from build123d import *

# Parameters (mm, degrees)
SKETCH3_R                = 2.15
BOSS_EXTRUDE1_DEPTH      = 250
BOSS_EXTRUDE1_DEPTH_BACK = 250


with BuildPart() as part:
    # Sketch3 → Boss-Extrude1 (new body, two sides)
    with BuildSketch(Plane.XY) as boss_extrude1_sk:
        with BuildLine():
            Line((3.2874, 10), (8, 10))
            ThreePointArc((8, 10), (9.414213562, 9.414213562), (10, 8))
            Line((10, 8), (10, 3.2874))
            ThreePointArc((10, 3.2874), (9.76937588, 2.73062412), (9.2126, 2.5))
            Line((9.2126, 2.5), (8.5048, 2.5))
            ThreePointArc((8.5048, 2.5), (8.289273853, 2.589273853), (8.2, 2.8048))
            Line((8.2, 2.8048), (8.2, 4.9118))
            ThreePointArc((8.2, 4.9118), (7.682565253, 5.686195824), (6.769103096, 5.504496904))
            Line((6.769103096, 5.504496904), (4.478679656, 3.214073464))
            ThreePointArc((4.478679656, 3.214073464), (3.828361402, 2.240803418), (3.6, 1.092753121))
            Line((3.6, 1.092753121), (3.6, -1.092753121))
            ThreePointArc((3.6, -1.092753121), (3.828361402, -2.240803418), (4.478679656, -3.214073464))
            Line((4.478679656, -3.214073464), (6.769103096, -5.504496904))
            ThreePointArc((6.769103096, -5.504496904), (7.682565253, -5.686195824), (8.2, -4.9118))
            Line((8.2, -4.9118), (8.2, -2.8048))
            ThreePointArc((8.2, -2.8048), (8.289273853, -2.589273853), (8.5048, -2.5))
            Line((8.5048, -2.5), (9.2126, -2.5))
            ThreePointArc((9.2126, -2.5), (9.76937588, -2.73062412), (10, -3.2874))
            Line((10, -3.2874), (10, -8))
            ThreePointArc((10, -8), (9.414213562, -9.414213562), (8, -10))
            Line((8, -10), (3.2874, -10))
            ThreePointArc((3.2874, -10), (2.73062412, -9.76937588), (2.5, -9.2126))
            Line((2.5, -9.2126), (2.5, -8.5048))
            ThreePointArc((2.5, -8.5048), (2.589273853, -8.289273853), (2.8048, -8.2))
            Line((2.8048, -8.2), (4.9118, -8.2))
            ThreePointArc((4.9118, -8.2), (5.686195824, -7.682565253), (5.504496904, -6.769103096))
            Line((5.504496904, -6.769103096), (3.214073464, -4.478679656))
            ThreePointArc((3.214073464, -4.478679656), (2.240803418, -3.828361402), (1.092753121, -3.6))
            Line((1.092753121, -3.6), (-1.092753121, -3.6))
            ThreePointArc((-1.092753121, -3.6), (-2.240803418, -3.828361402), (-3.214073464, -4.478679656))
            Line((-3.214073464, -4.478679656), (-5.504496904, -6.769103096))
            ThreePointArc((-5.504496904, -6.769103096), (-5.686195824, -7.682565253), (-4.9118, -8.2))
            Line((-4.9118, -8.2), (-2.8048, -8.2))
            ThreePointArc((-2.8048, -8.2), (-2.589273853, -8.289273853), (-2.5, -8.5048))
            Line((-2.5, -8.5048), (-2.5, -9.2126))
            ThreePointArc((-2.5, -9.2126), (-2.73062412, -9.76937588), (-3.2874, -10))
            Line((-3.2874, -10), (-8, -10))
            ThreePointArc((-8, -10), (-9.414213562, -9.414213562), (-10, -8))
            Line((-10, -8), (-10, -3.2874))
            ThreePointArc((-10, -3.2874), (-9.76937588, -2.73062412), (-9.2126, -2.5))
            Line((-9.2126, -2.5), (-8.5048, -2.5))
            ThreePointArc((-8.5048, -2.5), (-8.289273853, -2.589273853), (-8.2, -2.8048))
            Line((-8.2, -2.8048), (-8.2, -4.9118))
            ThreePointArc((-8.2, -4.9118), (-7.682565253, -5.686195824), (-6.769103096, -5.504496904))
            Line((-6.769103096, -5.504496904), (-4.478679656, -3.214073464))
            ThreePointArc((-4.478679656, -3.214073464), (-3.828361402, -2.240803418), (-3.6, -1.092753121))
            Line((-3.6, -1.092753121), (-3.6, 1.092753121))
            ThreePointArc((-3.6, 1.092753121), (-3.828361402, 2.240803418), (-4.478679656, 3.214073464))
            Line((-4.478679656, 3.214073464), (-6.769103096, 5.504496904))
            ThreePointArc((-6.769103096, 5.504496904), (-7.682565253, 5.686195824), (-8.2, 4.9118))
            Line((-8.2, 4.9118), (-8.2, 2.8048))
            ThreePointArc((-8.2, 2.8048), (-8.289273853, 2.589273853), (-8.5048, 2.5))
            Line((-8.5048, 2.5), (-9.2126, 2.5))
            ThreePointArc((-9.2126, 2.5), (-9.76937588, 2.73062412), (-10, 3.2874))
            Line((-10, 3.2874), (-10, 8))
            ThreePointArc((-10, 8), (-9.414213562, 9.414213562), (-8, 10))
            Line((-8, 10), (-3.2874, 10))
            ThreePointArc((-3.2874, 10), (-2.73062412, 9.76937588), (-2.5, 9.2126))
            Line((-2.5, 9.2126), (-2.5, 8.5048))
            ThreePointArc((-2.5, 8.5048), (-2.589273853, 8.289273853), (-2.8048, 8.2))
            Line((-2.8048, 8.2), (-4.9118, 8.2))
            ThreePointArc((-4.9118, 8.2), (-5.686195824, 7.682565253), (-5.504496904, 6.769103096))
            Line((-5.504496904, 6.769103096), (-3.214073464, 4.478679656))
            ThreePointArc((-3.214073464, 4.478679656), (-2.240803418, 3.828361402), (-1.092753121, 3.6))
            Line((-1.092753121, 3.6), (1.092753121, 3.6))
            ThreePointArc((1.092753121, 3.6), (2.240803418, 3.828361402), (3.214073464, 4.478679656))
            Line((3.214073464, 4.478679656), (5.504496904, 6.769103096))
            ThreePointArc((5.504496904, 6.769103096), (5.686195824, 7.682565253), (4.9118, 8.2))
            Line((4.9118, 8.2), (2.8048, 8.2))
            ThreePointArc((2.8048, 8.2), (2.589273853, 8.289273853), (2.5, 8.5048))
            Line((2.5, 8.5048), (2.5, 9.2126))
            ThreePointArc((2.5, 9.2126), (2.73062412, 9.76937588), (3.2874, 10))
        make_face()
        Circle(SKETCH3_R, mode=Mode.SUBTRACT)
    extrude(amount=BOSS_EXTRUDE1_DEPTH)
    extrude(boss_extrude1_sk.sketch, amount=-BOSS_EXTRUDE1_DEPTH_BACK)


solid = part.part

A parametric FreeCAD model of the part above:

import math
import FreeCAD as App
import Part
import Sketcher
from FreeCAD import Vector
Q = App.Units.Quantity

doc = App.newDocument("Part")
params = doc.addObject("Spreadsheet::Sheet", "Params")
for row, (alias, value) in enumerate([
    ("sketch1_radius", "3 mm"),
    ("sketch1_radius2", "2 mm"),
    ("sketch1_diameter", "4.3 mm"),
    ("pad1_length", "250 mm"),
    ("pad1_length2", "250 mm"),
], start=1):
    params.set(f"A{row}", alias)
    params.set(f"B{row}", "=" + value)
    params.setAlias(f"B{row}", alias)

body = doc.addObject("PartDesign::Body", "Body")

sketch1 = body.newObject("Sketcher::SketchObject", "Sketch")
sketch1.AttachmentSupport = (doc.getObject("XY_Plane"), [""])
sketch1.MapMode = "FlatFace"
sketch1.addGeometry(Part.LineSegment(Vector(8, 10, 0), Vector(3.29, 10, 0)), False)
sketch1.addGeometry(Part.ArcOfCircle(Part.Circle(Vector(3.29, 9.21, 0), Vector(0, 0, 1), 0.79), math.radians(90), math.radians(180)), False)
sketch1.addGeometry(Part.LineSegment(Vector(2.5, 9.21, 0), Vector(2.5, 8.5, 0)), False)
sketch1.addGeometry(Part.ArcOfCircle(Part.Circle(Vector(2.8, 8.5, 0), Vector(0, 0, 1), 0.3), math.radians(180), math.radians(270)), False)
sketch1.addGeometry(Part.LineSegment(Vector(2.8, 8.2, 0), Vector(4.91, 8.2, 0)), False)
sketch1.addGeometry(Part.ArcOfCircle(Part.Circle(Vector(4.91, 7.36, 0), Vector(0, 0, 1), 0.84), math.radians(-45), math.radians(90)), False)
sketch1.addGeometry(Part.LineSegment(Vector(5.5, 6.77, 0), Vector(3.21, 4.48, 0)), False)
sketch1.addGeometry(Part.ArcOfCircle(Part.Circle(Vector(1.09, 6.6, 0), Vector(0, 0, 1), 3), math.radians(-90), math.radians(-45)), False)
sketch1.addGeometry(Part.LineSegment(Vector(1.09, 3.6, 0), Vector(-1.09, 3.6, 0)), False)
sketch1.addGeometry(Part.ArcOfCircle(Part.Circle(Vector(-1.09, 6.6, 0), Vector(0, 0, 1), 3), math.radians(-135), math.radians(-90)), False)
sketch1.addGeometry(Part.LineSegment(Vector(-3.21, 4.48, 0), Vector(-5.5, 6.77, 0)), False)
sketch1.addGeometry(Part.ArcOfCircle(Part.Circle(Vector(-4.91, 7.36, 0), Vector(0, 0, 1), 0.84), math.radians(90), math.radians(225)), False)
sketch1.addGeometry(Part.LineSegment(Vector(-4.91, 8.2, 0), Vector(-2.8, 8.2, 0)), False)
sketch1.addGeometry(Part.ArcOfCircle(Part.Circle(Vector(-2.8, 8.5, 0), Vector(0, 0, 1), 0.3), math.radians(-90), math.radians(0)), False)
sketch1.addGeometry(Part.LineSegment(Vector(-2.5, 8.5, 0), Vector(-2.5, 9.21, 0)), False)
sketch1.addGeometry(Part.ArcOfCircle(Part.Circle(Vector(-3.29, 9.21, 0), Vector(0, 0, 1), 0.79), math.radians(0), math.radians(90)), False)
sketch1.addGeometry(Part.LineSegment(Vector(-3.29, 10, 0), Vector(-8, 10, 0)), False)
sketch1.addGeometry(Part.ArcOfCircle(Part.Circle(Vector(-8, 8, 0), Vector(0, 0, 1), 2), math.radians(90), math.radians(180)), False)
sketch1.addGeometry(Part.LineSegment(Vector(-10, 8, 0), Vector(-10, 3.29, 0)), False)
sketch1.addGeometry(Part.ArcOfCircle(Part.Circle(Vector(-9.21, 3.29, 0), Vector(0, 0, 1), 0.79), math.radians(180), math.radians(270)), False)
sketch1.addGeometry(Part.LineSegment(Vector(-9.21, 2.5, 0), Vector(-8.5, 2.5, 0)), False)
sketch1.addGeometry(Part.ArcOfCircle(Part.Circle(Vector(-8.5, 2.8, 0), Vector(0, 0, 1), 0.3), math.radians(-90), math.radians(0)), False)
sketch1.addGeometry(Part.LineSegment(Vector(-8.2, 2.8, 0), Vector(-8.2, 4.91, 0)), False)
sketch1.addGeometry(Part.ArcOfCircle(Part.Circle(Vector(-7.36, 4.91, 0), Vector(0, 0, 1), 0.84), math.radians(45), math.radians(180)), False)
sketch1.addGeometry(Part.LineSegment(Vector(-6.77, 5.5, 0), Vector(-4.48, 3.21, 0)), False)
sketch1.addGeometry(Part.ArcOfCircle(Part.Circle(Vector(-6.6, 1.09, 0), Vector(0, 0, 1), 3), math.radians(0), math.radians(45)), False)
sketch1.addGeometry(Part.LineSegment(Vector(-3.6, 1.09, 0), Vector(-3.6, -1.09, 0)), False)
sketch1.addGeometry(Part.ArcOfCircle(Part.Circle(Vector(-6.6, -1.09, 0), Vector(0, 0, 1), 3), math.radians(-45), math.radians(0)), False)
sketch1.addGeometry(Part.LineSegment(Vector(-4.48, -3.21, 0), Vector(-6.77, -5.5, 0)), False)
sketch1.addGeometry(Part.ArcOfCircle(Part.Circle(Vector(-7.36, -4.91, 0), Vector(0, 0, 1), 0.84), math.radians(180), math.radians(315)), False)
sketch1.addGeometry(Part.LineSegment(Vector(-8.2, -4.91, 0), Vector(-8.2, -2.8, 0)), False)
sketch1.addGeometry(Part.ArcOfCircle(Part.Circle(Vector(-8.5, -2.8, 0), Vector(0, 0, 1), 0.3), math.radians(0), math.radians(90)), False)
sketch1.addGeometry(Part.LineSegment(Vector(-8.5, -2.5, 0), Vector(-9.21, -2.5, 0)), False)
sketch1.addGeometry(Part.ArcOfCircle(Part.Circle(Vector(-9.21, -3.29, 0), Vector(0, 0, 1), 0.79), math.radians(90), math.radians(180)), False)
sketch1.addGeometry(Part.LineSegment(Vector(-10, -3.29, 0), Vector(-10, -8, 0)), False)
sketch1.addGeometry(Part.ArcOfCircle(Part.Circle(Vector(-8, -8, 0), Vector(0, 0, 1), 2), math.radians(-180), math.radians(-90)), False)
sketch1.addGeometry(Part.LineSegment(Vector(-8, -10, 0), Vector(-3.29, -10, 0)), False)
sketch1.addGeometry(Part.ArcOfCircle(Part.Circle(Vector(-3.29, -9.21, 0), Vector(0, 0, 1), 0.79), math.radians(-90), math.radians(0)), False)
sketch1.addGeometry(Part.LineSegment(Vector(-2.5, -9.21, 0), Vector(-2.5, -8.5, 0)), False)
sketch1.addGeometry(Part.ArcOfCircle(Part.Circle(Vector(-2.8, -8.5, 0), Vector(0, 0, 1), 0.3), math.radians(0), math.radians(90)), False)
sketch1.addGeometry(Part.LineSegment(Vector(-2.8, -8.2, 0), Vector(-4.91, -8.2, 0)), False)
sketch1.addGeometry(Part.ArcOfCircle(Part.Circle(Vector(-4.91, -7.36, 0), Vector(0, 0, 1), 0.84), math.radians(135), math.radians(270)), False)
sketch1.addGeometry(Part.LineSegment(Vector(-5.5, -6.77, 0), Vector(-3.21, -4.48, 0)), False)
sketch1.addGeometry(Part.ArcOfCircle(Part.Circle(Vector(-1.09, -6.6, 0), Vector(0, 0, 1), 3), math.radians(90), math.radians(135)), False)
sketch1.addGeometry(Part.LineSegment(Vector(-1.09, -3.6, 0), Vector(1.09, -3.6, 0)), False)
sketch1.addGeometry(Part.ArcOfCircle(Part.Circle(Vector(1.09, -6.6, 0), Vector(0, 0, 1), 3), math.radians(45), math.radians(90)), False)
sketch1.addGeometry(Part.LineSegment(Vector(3.21, -4.48, 0), Vector(5.5, -6.77, 0)), False)
sketch1.addGeometry(Part.ArcOfCircle(Part.Circle(Vector(4.91, -7.36, 0), Vector(0, 0, 1), 0.84), math.radians(-90), math.radians(45)), False)
sketch1.addGeometry(Part.LineSegment(Vector(4.91, -8.2, 0), Vector(2.8, -8.2, 0)), False)
sketch1.addGeometry(Part.ArcOfCircle(Part.Circle(Vector(2.8, -8.5, 0), Vector(0, 0, 1), 0.3), math.radians(90), math.radians(180)), False)
sketch1.addGeometry(Part.LineSegment(Vector(2.5, -8.5, 0), Vector(2.5, -9.21, 0)), False)
sketch1.addGeometry(Part.ArcOfCircle(Part.Circle(Vector(3.29, -9.21, 0), Vector(0, 0, 1), 0.79), math.radians(180), math.radians(270)), False)
sketch1.addGeometry(Part.LineSegment(Vector(3.29, -10, 0), Vector(8, -10, 0)), False)
sketch1.addGeometry(Part.ArcOfCircle(Part.Circle(Vector(8, -8, 0), Vector(0, 0, 1), 2), math.radians(-90), math.radians(0)), False)
sketch1.addGeometry(Part.LineSegment(Vector(10, -8, 0), Vector(10, -3.29, 0)), False)
sketch1.addGeometry(Part.ArcOfCircle(Part.Circle(Vector(9.21, -3.29, 0), Vector(0, 0, 1), 0.79), math.radians(0), math.radians(90)), False)
sketch1.addGeometry(Part.LineSegment(Vector(9.21, -2.5, 0), Vector(8.5, -2.5, 0)), False)
sketch1.addGeometry(Part.ArcOfCircle(Part.Circle(Vector(8.5, -2.8, 0), Vector(0, 0, 1), 0.3), math.radians(90), math.radians(180)), False)
sketch1.addGeometry(Part.LineSegment(Vector(8.2, -2.8, 0), Vector(8.2, -4.91, 0)), False)
sketch1.addGeometry(Part.ArcOfCircle(Part.Circle(Vector(7.36, -4.91, 0), Vector(0, 0, 1), 0.84), math.radians(-135), math.radians(0)), False)
sketch1.addGeometry(Part.LineSegment(Vector(6.77, -5.5, 0), Vector(4.48, -3.21, 0)), False)
sketch1.addGeometry(Part.ArcOfCircle(Part.Circle(Vector(6.6, -1.09, 0), Vector(0, 0, 1), 3), math.radians(180), math.radians(225)), False)
sketch1.addGeometry(Part.LineSegment(Vector(3.6, -1.09, 0), Vector(3.6, 1.09, 0)), False)
sketch1.addGeometry(Part.ArcOfCircle(Part.Circle(Vector(6.6, 1.09, 0), Vector(0, 0, 1), 3), math.radians(135), math.radians(180)), False)
sketch1.addGeometry(Part.LineSegment(Vector(4.48, 3.21, 0), Vector(6.77, 5.5, 0)), False)
sketch1.addGeometry(Part.ArcOfCircle(Part.Circle(Vector(7.36, 4.91, 0), Vector(0, 0, 1), 0.84), math.radians(0), math.radians(135)), False)
sketch1.addGeometry(Part.LineSegment(Vector(8.2, 4.91, 0), Vector(8.2, 2.8, 0)), False)
sketch1.addGeometry(Part.ArcOfCircle(Part.Circle(Vector(8.5, 2.8, 0), Vector(0, 0, 1), 0.3), math.radians(180), math.radians(270)), False)
sketch1.addGeometry(Part.LineSegment(Vector(8.5, 2.5, 0), Vector(9.21, 2.5, 0)), False)
sketch1.addGeometry(Part.ArcOfCircle(Part.Circle(Vector(9.21, 3.29, 0), Vector(0, 0, 1), 0.79), math.radians(-90), math.radians(0)), False)
sketch1.addGeometry(Part.LineSegment(Vector(10, 3.29, 0), Vector(10, 8, 0)), False)
sketch1.addGeometry(Part.ArcOfCircle(Part.Circle(Vector(8, 8, 0), Vector(0, 0, 1), 2), math.radians(0), math.radians(90)), False)
sketch1.addGeometry(Part.Circle(Vector(0, 0, 0), Vector(0, 0, 1), 2.15), False)
sketch1.addConstraint(Sketcher.Constraint("Tangent", 0, 2, 1, 1))
sketch1.addConstraint(Sketcher.Constraint("Tangent", 1, 2, 2, 1))
sketch1.addConstraint(Sketcher.Constraint("Tangent", 2, 2, 3, 1))
sketch1.addConstraint(Sketcher.Constraint("Tangent", 3, 2, 4, 1))
sketch1.addConstraint(Sketcher.Constraint("Tangent", 4, 2, 5, 2))
sketch1.addConstraint(Sketcher.Constraint("Tangent", 5, 1, 6, 1))
sketch1.addConstraint(Sketcher.Constraint("Tangent", 6, 2, 7, 2))
sketch1.addConstraint(Sketcher.Constraint("Tangent", 7, 1, 8, 1))
sketch1.addConstraint(Sketcher.Constraint("Tangent", 8, 2, 9, 2))
sketch1.addConstraint(Sketcher.Constraint("Tangent", 9, 1, 10, 1))
sketch1.addConstraint(Sketcher.Constraint("Tangent", 10, 2, 11, 2))
sketch1.addConstraint(Sketcher.Constraint("Tangent", 11, 1, 12, 1))
sketch1.addConstraint(Sketcher.Constraint("Tangent", 12, 2, 13, 1))
sketch1.addConstraint(Sketcher.Constraint("Tangent", 13, 2, 14, 1))
sketch1.addConstraint(Sketcher.Constraint("Tangent", 14, 2, 15, 1))
sketch1.addConstraint(Sketcher.Constraint("Tangent", 15, 2, 16, 1))
sketch1.addConstraint(Sketcher.Constraint("Tangent", 16, 2, 17, 1))
sketch1.addConstraint(Sketcher.Constraint("Tangent", 17, 2, 18, 1))
sketch1.addConstraint(Sketcher.Constraint("Tangent", 18, 2, 19, 1))
sketch1.addConstraint(Sketcher.Constraint("Tangent", 19, 2, 20, 1))
sketch1.addConstraint(Sketcher.Constraint("Tangent", 20, 2, 21, 1))
sketch1.addConstraint(Sketcher.Constraint("Tangent", 21, 2, 22, 1))
sketch1.addConstraint(Sketcher.Constraint("Tangent", 22, 2, 23, 2))
sketch1.addConstraint(Sketcher.Constraint("Tangent", 23, 1, 24, 1))
sketch1.addConstraint(Sketcher.Constraint("Tangent", 24, 2, 25, 2))
sketch1.addConstraint(Sketcher.Constraint("Tangent", 25, 1, 26, 1))
sketch1.addConstraint(Sketcher.Constraint("Tangent", 26, 2, 27, 2))
sketch1.addConstraint(Sketcher.Constraint("Tangent", 27, 1, 28, 1))
sketch1.addConstraint(Sketcher.Constraint("Tangent", 28, 2, 29, 2))
sketch1.addConstraint(Sketcher.Constraint("Tangent", 29, 1, 30, 1))
sketch1.addConstraint(Sketcher.Constraint("Tangent", 30, 2, 31, 1))
sketch1.addConstraint(Sketcher.Constraint("Tangent", 31, 2, 32, 1))
sketch1.addConstraint(Sketcher.Constraint("Tangent", 32, 2, 33, 1))
sketch1.addConstraint(Sketcher.Constraint("Tangent", 33, 2, 34, 1))
sketch1.addConstraint(Sketcher.Constraint("Tangent", 34, 2, 35, 1))
sketch1.addConstraint(Sketcher.Constraint("Tangent", 35, 2, 36, 1))
sketch1.addConstraint(Sketcher.Constraint("Tangent", 36, 2, 37, 1))
sketch1.addConstraint(Sketcher.Constraint("Tangent", 37, 2, 38, 1))
sketch1.addConstraint(Sketcher.Constraint("Tangent", 38, 2, 39, 1))
sketch1.addConstraint(Sketcher.Constraint("Tangent", 39, 2, 40, 1))
sketch1.addConstraint(Sketcher.Constraint("Tangent", 40, 2, 41, 2))
sketch1.addConstraint(Sketcher.Constraint("Tangent", 41, 1, 42, 1))
sketch1.addConstraint(Sketcher.Constraint("Tangent", 42, 2, 43, 2))
sketch1.addConstraint(Sketcher.Constraint("Tangent", 43, 1, 44, 1))
sketch1.addConstraint(Sketcher.Constraint("Tangent", 44, 2, 45, 2))
sketch1.addConstraint(Sketcher.Constraint("Tangent", 45, 1, 46, 1))
sketch1.addConstraint(Sketcher.Constraint("Tangent", 46, 2, 47, 2))
sketch1.addConstraint(Sketcher.Constraint("Tangent", 47, 1, 48, 1))
sketch1.addConstraint(Sketcher.Constraint("Tangent", 48, 2, 49, 1))
sketch1.addConstraint(Sketcher.Constraint("Tangent", 49, 2, 50, 1))
sketch1.addConstraint(Sketcher.Constraint("Tangent", 50, 2, 51, 1))
sketch1.addConstraint(Sketcher.Constraint("Tangent", 51, 2, 52, 1))
sketch1.addConstraint(Sketcher.Constraint("Tangent", 52, 2, 53, 1))
sketch1.addConstraint(Sketcher.Constraint("Tangent", 53, 2, 54, 1))
sketch1.addConstraint(Sketcher.Constraint("Tangent", 54, 2, 55, 1))
sketch1.addConstraint(Sketcher.Constraint("Tangent", 55, 2, 56, 1))
sketch1.addConstraint(Sketcher.Constraint("Tangent", 56, 2, 57, 1))
sketch1.addConstraint(Sketcher.Constraint("Tangent", 57, 2, 58, 1))
sketch1.addConstraint(Sketcher.Constraint("Tangent", 58, 2, 59, 2))
sketch1.addConstraint(Sketcher.Constraint("Tangent", 59, 1, 60, 1))
sketch1.addConstraint(Sketcher.Constraint("Tangent", 60, 2, 61, 2))
sketch1.addConstraint(Sketcher.Constraint("Tangent", 61, 1, 62, 1))
sketch1.addConstraint(Sketcher.Constraint("Tangent", 62, 2, 63, 2))
sketch1.addConstraint(Sketcher.Constraint("Tangent", 63, 1, 64, 1))
sketch1.addConstraint(Sketcher.Constraint("Tangent", 64, 2, 65, 2))
sketch1.addConstraint(Sketcher.Constraint("Tangent", 65, 1, 66, 1))
sketch1.addConstraint(Sketcher.Constraint("Tangent", 66, 2, 67, 1))
sketch1.addConstraint(Sketcher.Constraint("Tangent", 67, 2, 68, 1))
sketch1.addConstraint(Sketcher.Constraint("Tangent", 68, 2, 69, 1))
sketch1.addConstraint(Sketcher.Constraint("Tangent", 69, 2, 70, 1))
sketch1.addConstraint(Sketcher.Constraint("Tangent", 70, 2, 71, 1))
sketch1.addConstraint(Sketcher.Constraint("Tangent", 71, 2, 0, 1))
sketch1.addConstraint(Sketcher.Constraint("Horizontal", 0))
sketch1.addConstraint(Sketcher.Constraint("Vertical", 2))
sketch1.addConstraint(Sketcher.Constraint("Horizontal", 4))
sketch1.addConstraint(Sketcher.Constraint("Horizontal", 8))
sketch1.addConstraint(Sketcher.Constraint("Horizontal", 12))
sketch1.addConstraint(Sketcher.Constraint("Vertical", 14))
sketch1.addConstraint(Sketcher.Constraint("Horizontal", 16))
sketch1.addConstraint(Sketcher.Constraint("Vertical", 18))
sketch1.addConstraint(Sketcher.Constraint("Horizontal", 20))
sketch1.addConstraint(Sketcher.Constraint("Vertical", 22))
sketch1.addConstraint(Sketcher.Constraint("Vertical", 26))
sketch1.addConstraint(Sketcher.Constraint("Vertical", 30))
sketch1.addConstraint(Sketcher.Constraint("Horizontal", 32))
sketch1.addConstraint(Sketcher.Constraint("Vertical", 34))
sketch1.addConstraint(Sketcher.Constraint("Horizontal", 36))
sketch1.addConstraint(Sketcher.Constraint("Vertical", 38))
sketch1.addConstraint(Sketcher.Constraint("Horizontal", 40))
sketch1.addConstraint(Sketcher.Constraint("Horizontal", 44))
sketch1.addConstraint(Sketcher.Constraint("Horizontal", 48))
sketch1.addConstraint(Sketcher.Constraint("Vertical", 50))
sketch1.addConstraint(Sketcher.Constraint("Horizontal", 52))
sketch1.addConstraint(Sketcher.Constraint("Vertical", 54))
sketch1.addConstraint(Sketcher.Constraint("Horizontal", 56))
sketch1.addConstraint(Sketcher.Constraint("Vertical", 58))
sketch1.addConstraint(Sketcher.Constraint("Vertical", 62))
sketch1.addConstraint(Sketcher.Constraint("Vertical", 66))
sketch1.addConstraint(Sketcher.Constraint("Horizontal", 68))
sketch1.addConstraint(Sketcher.Constraint("Vertical", 70))
sketch1.addConstraint(Sketcher.Constraint("Coincident", 72, 3, -1, 1))
sketch1.addConstraint(Sketcher.Constraint("Equal", 7, 9))
sketch1.addConstraint(Sketcher.Constraint("Equal", 5, 11))
sketch1.addConstraint(Sketcher.Constraint("Equal", 3, 13))
sketch1.addConstraint(Sketcher.Constraint("Equal", 1, 15))
sketch1.addConstraint(Sketcher.Constraint("Equal", 15, 19))
sketch1.addConstraint(Sketcher.Constraint("Equal", 13, 21))
sketch1.addConstraint(Sketcher.Constraint("Equal", 11, 23))
sketch1.addConstraint(Sketcher.Constraint("Equal", 9, 25))
sketch1.addConstraint(Sketcher.Constraint("Equal", 25, 27))
sketch1.addConstraint(Sketcher.Constraint("Equal", 23, 29))
sketch1.addConstraint(Sketcher.Constraint("Equal", 21, 31))
sketch1.addConstraint(Sketcher.Constraint("Equal", 19, 33))
sketch1.addConstraint(Sketcher.Constraint("Equal", 17, 35))
sketch1.addConstraint(Sketcher.Constraint("Equal", 33, 37))
sketch1.addConstraint(Sketcher.Constraint("Equal", 31, 39))
sketch1.addConstraint(Sketcher.Constraint("Equal", 29, 41))
sketch1.addConstraint(Sketcher.Constraint("Equal", 27, 43))
sketch1.addConstraint(Sketcher.Constraint("Equal", 43, 45))
sketch1.addConstraint(Sketcher.Constraint("Equal", 41, 47))
sketch1.addConstraint(Sketcher.Constraint("Equal", 39, 49))
sketch1.addConstraint(Sketcher.Constraint("Equal", 37, 51))
sketch1.addConstraint(Sketcher.Constraint("Equal", 35, 53))
sketch1.addConstraint(Sketcher.Constraint("Equal", 51, 55))
sketch1.addConstraint(Sketcher.Constraint("Equal", 49, 57))
sketch1.addConstraint(Sketcher.Constraint("Equal", 47, 59))
sketch1.addConstraint(Sketcher.Constraint("Equal", 45, 61))
sketch1.addConstraint(Sketcher.Constraint("Equal", 61, 63))
sketch1.addConstraint(Sketcher.Constraint("Equal", 59, 65))
sketch1.addConstraint(Sketcher.Constraint("Equal", 57, 67))
sketch1.addConstraint(Sketcher.Constraint("Equal", 55, 69))
sketch1.addConstraint(Sketcher.Constraint("Equal", 53, 71))
sketch1.addConstraint(Sketcher.Constraint("Symmetric", 1, 3, 37, 3, -1, 1))
sketch1.addConstraint(Sketcher.Constraint("Symmetric", 5, 3, 41, 3, -1, 1))
sketch1.addConstraint(Sketcher.Constraint("Symmetric", 7, 3, 43, 3, -1, 1))
sketch1.addConstraint(Sketcher.Constraint("Symmetric", 11, 3, 47, 3, -1, 1))
sketch1.addConstraint(Sketcher.Constraint("Symmetric", 15, 3, 51, 3, -1, 1))
sketch1.addConstraint(Sketcher.Constraint("Symmetric", 19, 3, 55, 3, -1, 1))
sketch1.addConstraint(Sketcher.Constraint("Symmetric", 23, 3, 59, 3, -1, 1))
sketch1.addConstraint(Sketcher.Constraint("Symmetric", 25, 3, 61, 3, -1, 1))
sketch1.addConstraint(Sketcher.Constraint("Symmetric", 29, 3, 65, 3, -1, 1))
sketch1.addConstraint(Sketcher.Constraint("Symmetric", 33, 3, 69, 3, -1, 1))
sketch1.addConstraint(Sketcher.Constraint("Symmetric", 5, 3, 11, 3, -2))
sketch1.addConstraint(Sketcher.Constraint("Symmetric", 1, 3, 15, 3, -2))
sketch1.addConstraint(Sketcher.Constraint("Symmetric", 33, 3, 55, 3, -2))
sketch1.addConstraint(Sketcher.Constraint("Symmetric", 29, 3, 59, 3, -2))
sketch1.addConstraint(Sketcher.Constraint("Perpendicular", 6, 10))
sketch1.addConstraint(Sketcher.Constraint("Parallel", 10, 24))
sketch1.addConstraint(Sketcher.Constraint("Perpendicular", 24, 28))
sketch1.addConstraint(Sketcher.Constraint("Perpendicular", 42, 46))
sketch1.addConstraint(Sketcher.Constraint("Perpendicular", 60, 64))
sketch1.addConstraint(Sketcher.Constraint("Horizontal", 27, 3, 61, 3))
sketch1.addConstraint(Sketcher.Constraint("Equal", 68, 2))
sketch1.addConstraint(Sketcher.Constraint("Equal", 52, 18))
sketch1.addConstraint(Sketcher.Constraint("Equal", 48, 22))
sketch1.addConstraint(Sketcher.Constraint("Equal", 44, 26))
sketch1.addConstraint(Sketcher.Constraint("Equal", 10, 24))
sketch1.addConstraint(Sketcher.Constraint("Radius", 7, Q("3 mm")))
sketch1.addConstraint(Sketcher.Constraint("Radius", 17, Q("2 mm")))
sketch1.addConstraint(Sketcher.Constraint("Diameter", 72, Q("4.3 mm")))
sketch1.addConstraint(Sketcher.Constraint("DistanceX", 17, 3, -1, 1, Q("8 mm")))
sketch1.addConstraint(Sketcher.Constraint("DistanceY", -1, 1, 7, 3, Q("6.6 mm")))
sketch1.addConstraint(Sketcher.Constraint("DistanceX", -1, 1, 1, 2, Q("2.5 mm")))
sketch1.addConstraint(Sketcher.Constraint("DistanceY", -1, 1, 3, 2, Q("8.2 mm")))
sketch1.addConstraint(Sketcher.Constraint("Radius", 1, Q("0.7874 mm")))
sketch1.addConstraint(Sketcher.Constraint("Radius", 3, Q("0.3048 mm")))
sketch1.addConstraint(Sketcher.Constraint("Radius", 5, Q("0.8382 mm")))
sketch1.addConstraint(Sketcher.Constraint("DistanceX", 4, 1, 4, 2, Q("2.107 mm")))
sketch1.setExpression("Constraints[157]", "Params.sketch1_radius")
sketch1.setExpression("Constraints[158]", "Params.sketch1_radius2")
sketch1.setExpression("Constraints[159]", "Params.sketch1_diameter")
pad1 = body.newObject("PartDesign::Pad", "Pad")
pad1.Profile = sketch1
pad1.Type = "TwoLengths"
pad1.setExpression("Length", "Params.pad1_length")
pad1.setExpression("Length2", "Params.pad1_length2")

doc.recompute()
